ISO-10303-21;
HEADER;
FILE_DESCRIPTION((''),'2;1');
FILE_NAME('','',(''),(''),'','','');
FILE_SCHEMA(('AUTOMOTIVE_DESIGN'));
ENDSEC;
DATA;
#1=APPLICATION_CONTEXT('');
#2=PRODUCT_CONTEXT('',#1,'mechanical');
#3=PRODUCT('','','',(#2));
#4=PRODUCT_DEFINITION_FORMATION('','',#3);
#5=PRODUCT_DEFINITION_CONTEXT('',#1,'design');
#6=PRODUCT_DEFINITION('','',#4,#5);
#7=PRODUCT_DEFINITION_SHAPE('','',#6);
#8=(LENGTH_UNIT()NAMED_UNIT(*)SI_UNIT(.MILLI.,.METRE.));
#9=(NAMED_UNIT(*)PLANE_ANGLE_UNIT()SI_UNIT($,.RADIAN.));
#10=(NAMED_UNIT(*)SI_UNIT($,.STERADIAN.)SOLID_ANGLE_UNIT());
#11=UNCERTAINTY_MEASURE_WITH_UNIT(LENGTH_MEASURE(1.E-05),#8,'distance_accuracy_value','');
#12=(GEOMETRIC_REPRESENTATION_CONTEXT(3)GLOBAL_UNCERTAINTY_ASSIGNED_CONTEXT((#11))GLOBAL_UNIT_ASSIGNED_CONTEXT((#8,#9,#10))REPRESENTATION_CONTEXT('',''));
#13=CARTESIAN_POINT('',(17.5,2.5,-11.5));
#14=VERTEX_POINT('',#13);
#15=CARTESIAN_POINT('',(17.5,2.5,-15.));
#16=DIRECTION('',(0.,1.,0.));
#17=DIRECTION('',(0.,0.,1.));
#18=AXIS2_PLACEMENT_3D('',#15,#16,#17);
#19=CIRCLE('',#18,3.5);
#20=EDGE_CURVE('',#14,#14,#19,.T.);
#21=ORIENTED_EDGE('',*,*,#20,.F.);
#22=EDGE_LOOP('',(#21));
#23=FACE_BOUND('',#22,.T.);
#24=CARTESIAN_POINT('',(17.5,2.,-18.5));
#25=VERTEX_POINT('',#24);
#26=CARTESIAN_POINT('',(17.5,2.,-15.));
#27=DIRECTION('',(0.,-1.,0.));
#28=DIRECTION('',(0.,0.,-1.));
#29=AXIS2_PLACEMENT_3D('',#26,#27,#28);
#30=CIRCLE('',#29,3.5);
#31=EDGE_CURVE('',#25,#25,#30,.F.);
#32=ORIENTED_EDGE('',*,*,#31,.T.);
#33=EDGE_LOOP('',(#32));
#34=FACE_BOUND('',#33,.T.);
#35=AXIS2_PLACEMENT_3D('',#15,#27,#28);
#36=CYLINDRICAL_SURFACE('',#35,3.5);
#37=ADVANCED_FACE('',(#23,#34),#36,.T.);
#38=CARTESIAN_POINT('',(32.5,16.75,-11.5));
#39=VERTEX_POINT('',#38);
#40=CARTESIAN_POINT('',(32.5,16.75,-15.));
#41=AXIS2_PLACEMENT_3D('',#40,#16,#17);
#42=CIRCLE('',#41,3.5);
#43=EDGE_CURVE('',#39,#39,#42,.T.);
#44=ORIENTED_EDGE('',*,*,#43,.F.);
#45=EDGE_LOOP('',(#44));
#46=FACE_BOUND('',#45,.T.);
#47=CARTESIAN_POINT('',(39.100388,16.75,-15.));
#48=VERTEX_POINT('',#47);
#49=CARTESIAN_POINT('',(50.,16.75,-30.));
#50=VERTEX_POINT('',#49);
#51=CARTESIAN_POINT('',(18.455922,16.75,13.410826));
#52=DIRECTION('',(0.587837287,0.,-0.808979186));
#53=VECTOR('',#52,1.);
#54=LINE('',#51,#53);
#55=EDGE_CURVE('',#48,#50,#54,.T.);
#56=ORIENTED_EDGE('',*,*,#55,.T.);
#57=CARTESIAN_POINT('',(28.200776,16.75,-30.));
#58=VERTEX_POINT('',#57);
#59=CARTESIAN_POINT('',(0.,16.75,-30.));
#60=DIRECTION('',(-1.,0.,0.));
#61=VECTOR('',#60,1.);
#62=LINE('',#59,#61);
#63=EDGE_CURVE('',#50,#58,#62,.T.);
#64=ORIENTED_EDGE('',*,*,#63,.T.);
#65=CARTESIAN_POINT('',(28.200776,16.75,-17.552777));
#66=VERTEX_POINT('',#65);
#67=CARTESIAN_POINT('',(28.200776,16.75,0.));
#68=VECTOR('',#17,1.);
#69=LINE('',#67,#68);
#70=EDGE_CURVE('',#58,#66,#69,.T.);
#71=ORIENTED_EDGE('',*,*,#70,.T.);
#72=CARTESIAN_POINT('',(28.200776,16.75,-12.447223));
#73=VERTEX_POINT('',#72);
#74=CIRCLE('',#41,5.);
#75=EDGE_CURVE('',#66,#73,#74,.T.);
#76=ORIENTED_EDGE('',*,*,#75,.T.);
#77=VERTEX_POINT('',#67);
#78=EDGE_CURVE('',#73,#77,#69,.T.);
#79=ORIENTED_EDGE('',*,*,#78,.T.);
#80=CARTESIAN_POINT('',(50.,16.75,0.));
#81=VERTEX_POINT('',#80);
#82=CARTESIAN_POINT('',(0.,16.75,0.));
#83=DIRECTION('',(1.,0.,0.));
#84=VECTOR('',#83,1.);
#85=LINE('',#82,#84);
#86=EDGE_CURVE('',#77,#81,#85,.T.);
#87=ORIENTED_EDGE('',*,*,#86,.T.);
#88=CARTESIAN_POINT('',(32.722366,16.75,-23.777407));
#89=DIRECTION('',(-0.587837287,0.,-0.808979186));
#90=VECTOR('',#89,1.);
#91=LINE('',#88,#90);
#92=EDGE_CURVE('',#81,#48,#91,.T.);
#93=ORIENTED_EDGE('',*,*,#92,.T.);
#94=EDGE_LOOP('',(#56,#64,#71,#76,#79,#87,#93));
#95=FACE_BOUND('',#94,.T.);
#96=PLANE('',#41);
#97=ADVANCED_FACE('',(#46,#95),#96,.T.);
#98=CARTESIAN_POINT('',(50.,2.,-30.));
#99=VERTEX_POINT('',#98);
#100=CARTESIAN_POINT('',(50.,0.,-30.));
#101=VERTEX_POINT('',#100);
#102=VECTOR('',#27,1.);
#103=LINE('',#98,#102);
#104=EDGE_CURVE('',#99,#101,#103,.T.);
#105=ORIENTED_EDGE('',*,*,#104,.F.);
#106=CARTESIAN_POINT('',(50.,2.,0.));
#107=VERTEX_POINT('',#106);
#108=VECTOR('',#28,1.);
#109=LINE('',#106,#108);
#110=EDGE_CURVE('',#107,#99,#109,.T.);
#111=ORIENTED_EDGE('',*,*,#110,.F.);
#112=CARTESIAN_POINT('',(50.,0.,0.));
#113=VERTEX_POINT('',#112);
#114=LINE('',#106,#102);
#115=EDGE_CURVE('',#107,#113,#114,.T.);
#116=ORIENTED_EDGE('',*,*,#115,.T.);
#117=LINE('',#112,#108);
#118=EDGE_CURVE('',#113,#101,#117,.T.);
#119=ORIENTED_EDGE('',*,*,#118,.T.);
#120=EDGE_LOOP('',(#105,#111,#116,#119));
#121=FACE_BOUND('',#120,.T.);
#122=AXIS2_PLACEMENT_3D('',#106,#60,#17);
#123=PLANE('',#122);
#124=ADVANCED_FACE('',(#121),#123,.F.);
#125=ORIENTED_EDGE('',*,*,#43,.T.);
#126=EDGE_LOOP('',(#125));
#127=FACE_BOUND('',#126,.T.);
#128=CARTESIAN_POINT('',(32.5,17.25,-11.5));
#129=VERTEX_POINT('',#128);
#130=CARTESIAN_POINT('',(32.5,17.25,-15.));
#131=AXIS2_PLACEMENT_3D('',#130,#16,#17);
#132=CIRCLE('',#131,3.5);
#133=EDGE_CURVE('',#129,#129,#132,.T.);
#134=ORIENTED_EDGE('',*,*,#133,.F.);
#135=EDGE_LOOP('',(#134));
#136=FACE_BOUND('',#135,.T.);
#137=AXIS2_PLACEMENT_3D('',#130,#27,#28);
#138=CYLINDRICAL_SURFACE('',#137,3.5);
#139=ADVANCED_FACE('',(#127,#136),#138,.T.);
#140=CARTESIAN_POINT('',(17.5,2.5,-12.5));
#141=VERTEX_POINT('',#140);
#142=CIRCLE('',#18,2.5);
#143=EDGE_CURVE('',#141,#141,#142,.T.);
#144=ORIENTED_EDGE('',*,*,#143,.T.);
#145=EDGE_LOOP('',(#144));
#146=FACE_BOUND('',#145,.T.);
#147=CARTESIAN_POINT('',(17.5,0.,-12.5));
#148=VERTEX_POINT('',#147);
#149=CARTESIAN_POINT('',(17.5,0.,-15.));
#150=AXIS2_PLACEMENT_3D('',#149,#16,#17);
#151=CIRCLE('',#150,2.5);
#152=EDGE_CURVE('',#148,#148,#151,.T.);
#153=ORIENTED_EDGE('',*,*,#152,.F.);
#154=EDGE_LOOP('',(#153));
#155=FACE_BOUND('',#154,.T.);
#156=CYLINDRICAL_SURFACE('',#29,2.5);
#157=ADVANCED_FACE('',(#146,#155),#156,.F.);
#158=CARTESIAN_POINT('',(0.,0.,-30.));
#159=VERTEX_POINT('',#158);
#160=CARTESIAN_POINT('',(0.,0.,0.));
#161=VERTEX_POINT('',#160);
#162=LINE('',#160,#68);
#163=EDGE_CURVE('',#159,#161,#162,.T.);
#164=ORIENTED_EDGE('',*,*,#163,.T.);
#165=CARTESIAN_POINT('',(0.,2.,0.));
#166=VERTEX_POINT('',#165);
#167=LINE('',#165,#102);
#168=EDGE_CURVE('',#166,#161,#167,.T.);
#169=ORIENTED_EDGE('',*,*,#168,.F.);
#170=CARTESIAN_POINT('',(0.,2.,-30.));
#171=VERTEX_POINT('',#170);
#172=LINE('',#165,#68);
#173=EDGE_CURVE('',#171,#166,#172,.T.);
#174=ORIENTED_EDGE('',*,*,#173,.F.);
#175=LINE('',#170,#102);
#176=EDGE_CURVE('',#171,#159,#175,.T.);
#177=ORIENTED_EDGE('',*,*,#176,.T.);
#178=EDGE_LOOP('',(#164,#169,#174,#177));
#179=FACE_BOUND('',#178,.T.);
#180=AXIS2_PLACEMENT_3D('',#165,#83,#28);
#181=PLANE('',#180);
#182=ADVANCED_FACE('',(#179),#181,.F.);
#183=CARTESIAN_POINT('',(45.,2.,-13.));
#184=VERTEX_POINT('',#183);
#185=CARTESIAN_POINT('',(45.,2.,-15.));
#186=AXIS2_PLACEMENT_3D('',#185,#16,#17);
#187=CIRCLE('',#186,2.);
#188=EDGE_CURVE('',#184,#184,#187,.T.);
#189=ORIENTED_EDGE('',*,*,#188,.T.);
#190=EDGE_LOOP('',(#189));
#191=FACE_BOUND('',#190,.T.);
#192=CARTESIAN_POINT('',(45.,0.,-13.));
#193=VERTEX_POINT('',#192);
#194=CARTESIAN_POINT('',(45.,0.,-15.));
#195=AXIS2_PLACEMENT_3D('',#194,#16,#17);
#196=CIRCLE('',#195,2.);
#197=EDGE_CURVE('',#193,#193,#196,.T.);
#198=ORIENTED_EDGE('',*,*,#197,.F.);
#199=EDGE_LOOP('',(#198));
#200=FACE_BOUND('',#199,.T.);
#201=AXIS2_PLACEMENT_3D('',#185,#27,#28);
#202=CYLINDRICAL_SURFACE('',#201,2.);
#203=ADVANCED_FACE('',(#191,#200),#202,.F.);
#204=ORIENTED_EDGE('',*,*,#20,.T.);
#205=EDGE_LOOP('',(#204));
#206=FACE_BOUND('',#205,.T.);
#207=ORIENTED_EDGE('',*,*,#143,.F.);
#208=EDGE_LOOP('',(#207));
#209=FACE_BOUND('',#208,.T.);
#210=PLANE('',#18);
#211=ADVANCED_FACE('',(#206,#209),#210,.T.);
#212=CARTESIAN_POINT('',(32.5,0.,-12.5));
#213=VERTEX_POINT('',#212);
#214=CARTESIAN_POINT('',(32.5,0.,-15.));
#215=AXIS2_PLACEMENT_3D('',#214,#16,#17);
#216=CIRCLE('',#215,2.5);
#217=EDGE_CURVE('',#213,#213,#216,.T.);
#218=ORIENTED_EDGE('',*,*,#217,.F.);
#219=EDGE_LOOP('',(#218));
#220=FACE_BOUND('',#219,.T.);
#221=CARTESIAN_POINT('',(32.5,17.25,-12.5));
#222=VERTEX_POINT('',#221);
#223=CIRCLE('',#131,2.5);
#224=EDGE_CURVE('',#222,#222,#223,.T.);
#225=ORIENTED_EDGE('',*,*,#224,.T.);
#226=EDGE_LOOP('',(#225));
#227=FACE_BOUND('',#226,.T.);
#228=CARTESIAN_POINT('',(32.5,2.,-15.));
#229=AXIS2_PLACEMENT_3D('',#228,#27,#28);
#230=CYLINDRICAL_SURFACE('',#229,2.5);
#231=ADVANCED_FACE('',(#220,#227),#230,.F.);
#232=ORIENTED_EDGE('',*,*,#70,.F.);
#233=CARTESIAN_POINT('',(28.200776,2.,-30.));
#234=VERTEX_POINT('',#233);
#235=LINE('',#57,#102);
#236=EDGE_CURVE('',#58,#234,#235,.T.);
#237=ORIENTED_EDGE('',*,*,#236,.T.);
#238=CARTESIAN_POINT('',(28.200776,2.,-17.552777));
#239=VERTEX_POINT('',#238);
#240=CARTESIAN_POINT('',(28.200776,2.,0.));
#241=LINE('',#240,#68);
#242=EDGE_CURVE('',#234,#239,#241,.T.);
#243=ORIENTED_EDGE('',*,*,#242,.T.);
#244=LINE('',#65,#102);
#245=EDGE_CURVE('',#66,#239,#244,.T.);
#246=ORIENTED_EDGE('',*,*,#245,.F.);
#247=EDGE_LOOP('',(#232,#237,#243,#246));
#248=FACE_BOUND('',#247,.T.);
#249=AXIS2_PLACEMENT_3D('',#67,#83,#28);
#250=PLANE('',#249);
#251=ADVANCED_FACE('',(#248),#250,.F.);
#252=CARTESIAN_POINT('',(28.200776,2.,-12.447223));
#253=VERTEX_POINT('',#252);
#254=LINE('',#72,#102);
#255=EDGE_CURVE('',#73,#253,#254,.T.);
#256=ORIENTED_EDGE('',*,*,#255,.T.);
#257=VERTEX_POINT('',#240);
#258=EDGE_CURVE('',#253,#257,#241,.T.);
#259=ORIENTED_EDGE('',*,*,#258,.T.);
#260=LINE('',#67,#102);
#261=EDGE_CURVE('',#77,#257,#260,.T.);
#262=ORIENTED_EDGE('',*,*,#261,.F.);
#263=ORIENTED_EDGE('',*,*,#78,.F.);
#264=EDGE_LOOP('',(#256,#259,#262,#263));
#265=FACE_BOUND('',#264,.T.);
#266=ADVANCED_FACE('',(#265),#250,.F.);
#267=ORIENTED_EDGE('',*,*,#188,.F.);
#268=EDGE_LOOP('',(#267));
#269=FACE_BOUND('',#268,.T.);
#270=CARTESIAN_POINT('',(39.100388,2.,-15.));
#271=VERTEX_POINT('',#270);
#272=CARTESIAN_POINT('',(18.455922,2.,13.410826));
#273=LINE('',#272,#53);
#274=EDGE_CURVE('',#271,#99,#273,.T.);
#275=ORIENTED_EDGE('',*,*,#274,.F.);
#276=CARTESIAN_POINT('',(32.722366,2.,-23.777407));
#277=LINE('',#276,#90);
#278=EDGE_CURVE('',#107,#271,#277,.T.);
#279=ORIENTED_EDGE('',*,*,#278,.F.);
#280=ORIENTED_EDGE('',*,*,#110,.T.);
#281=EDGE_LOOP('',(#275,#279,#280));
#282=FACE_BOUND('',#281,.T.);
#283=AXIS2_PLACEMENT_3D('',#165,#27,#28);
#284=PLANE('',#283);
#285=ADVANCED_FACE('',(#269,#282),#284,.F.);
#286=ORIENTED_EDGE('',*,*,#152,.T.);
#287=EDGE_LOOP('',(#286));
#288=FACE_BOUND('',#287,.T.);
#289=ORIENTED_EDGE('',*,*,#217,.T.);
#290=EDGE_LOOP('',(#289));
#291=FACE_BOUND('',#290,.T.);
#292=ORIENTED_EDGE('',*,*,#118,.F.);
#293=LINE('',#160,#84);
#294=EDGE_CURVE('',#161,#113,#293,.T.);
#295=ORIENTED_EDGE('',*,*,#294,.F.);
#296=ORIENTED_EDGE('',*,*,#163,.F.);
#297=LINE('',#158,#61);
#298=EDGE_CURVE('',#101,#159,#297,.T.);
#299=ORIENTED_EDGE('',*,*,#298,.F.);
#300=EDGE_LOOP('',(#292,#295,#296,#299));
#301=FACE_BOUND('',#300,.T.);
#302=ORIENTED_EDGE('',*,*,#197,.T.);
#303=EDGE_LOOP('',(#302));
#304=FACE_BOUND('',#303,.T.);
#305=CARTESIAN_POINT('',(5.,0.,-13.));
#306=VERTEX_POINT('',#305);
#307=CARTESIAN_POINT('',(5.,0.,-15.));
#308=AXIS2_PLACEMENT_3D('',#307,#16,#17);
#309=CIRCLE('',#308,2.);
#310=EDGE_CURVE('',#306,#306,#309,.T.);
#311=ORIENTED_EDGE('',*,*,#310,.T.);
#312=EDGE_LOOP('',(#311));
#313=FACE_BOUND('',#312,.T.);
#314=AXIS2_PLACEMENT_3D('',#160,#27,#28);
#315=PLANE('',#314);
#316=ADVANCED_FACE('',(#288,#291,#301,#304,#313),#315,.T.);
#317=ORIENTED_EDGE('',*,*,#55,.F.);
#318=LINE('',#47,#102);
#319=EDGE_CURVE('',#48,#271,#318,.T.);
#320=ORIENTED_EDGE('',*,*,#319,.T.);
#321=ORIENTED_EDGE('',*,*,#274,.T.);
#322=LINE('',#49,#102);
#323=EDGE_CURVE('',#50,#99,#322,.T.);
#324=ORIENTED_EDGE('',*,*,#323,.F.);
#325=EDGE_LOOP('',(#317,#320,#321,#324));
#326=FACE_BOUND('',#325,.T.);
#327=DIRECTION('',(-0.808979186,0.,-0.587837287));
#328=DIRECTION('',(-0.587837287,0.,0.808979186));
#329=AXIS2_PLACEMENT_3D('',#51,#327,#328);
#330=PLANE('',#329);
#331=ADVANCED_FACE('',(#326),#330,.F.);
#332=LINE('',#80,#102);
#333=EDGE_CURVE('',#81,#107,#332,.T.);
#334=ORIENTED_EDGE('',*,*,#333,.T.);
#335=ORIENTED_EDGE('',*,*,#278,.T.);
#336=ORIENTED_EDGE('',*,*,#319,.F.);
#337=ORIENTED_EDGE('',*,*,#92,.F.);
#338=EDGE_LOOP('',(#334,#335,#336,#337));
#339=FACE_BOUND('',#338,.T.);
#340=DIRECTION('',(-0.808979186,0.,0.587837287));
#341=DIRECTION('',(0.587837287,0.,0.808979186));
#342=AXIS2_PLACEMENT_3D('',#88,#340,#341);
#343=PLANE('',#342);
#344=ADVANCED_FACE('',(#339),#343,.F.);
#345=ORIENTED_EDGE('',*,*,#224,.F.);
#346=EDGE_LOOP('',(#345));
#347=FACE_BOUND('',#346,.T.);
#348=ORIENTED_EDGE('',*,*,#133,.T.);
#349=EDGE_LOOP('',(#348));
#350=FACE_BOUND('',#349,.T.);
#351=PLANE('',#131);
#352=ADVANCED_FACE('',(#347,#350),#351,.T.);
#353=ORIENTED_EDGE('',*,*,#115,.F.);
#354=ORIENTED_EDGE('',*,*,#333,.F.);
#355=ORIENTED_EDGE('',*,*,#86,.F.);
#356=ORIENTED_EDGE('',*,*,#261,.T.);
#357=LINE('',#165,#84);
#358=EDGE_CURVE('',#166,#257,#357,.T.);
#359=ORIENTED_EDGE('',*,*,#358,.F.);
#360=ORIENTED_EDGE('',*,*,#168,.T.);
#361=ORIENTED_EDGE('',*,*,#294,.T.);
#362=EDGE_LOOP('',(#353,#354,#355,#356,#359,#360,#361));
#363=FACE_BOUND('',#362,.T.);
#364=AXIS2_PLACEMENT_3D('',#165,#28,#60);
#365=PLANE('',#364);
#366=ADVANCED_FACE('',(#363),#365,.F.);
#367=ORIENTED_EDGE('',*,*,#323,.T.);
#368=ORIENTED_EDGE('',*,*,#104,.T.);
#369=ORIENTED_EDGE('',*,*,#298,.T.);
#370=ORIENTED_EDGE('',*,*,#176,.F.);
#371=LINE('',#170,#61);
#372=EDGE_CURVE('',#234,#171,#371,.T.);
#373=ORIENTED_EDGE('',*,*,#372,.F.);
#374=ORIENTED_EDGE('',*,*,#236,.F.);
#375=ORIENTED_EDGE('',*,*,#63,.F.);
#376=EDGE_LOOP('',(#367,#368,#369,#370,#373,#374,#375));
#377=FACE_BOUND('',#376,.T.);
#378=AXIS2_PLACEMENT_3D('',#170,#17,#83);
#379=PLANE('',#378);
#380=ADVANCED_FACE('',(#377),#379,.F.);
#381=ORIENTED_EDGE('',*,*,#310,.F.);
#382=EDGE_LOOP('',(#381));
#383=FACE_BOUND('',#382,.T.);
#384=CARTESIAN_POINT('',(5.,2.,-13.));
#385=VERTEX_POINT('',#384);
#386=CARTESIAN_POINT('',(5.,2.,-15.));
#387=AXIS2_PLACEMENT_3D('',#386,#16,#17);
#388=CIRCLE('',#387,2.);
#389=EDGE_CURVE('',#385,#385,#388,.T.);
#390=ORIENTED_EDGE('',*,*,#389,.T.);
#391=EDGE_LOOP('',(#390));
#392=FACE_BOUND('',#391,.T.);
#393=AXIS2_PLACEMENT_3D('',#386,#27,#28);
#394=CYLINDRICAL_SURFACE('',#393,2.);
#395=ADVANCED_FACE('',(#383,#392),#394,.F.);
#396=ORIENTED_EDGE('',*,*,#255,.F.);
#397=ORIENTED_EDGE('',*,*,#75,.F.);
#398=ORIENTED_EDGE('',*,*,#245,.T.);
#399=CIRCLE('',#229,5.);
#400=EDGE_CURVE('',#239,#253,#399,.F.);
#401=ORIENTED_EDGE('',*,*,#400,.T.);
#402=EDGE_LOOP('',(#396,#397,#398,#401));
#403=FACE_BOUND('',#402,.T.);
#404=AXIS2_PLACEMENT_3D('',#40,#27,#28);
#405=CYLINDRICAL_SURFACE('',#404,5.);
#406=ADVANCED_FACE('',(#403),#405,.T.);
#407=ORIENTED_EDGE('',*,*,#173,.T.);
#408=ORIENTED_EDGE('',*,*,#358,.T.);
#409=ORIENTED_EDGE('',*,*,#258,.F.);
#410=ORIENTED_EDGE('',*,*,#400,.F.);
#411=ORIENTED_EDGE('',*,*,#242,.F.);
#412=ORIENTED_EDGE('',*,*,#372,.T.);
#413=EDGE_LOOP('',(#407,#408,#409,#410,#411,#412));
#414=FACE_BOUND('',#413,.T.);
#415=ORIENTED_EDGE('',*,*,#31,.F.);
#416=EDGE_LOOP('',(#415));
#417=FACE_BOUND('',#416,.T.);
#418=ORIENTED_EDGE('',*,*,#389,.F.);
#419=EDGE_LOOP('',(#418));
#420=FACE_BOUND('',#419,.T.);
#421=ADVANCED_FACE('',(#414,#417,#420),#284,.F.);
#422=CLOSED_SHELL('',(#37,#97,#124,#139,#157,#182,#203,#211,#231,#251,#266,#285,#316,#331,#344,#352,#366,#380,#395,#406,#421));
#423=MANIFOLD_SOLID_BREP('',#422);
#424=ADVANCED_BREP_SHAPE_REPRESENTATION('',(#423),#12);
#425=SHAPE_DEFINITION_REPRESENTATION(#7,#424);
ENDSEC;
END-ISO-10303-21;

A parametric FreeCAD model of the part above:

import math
import FreeCAD as App
import Part
import Sketcher
Q = App.Units.Quantity


def add_polygon(sketch, points):
    """Adds a closed chain of lines whose ends are joined by coincident constraints."""
    first, n = sketch.GeometryCount, len(points)
    for a, b in zip(points, points[1:] + points[:1]):
        sketch.addGeometry(Part.LineSegment(App.Vector(*a, 0), App.Vector(*b, 0)), False)
    for i in range(n):
        sketch.addConstraint(Sketcher.Constraint("Coincident", first + i, 2, first + (i + 1) % n, 1))

doc = App.newDocument("Part")
body = doc.addObject("PartDesign::Body", "Body")

# Sketch on XZ plane
sketch1 = body.newObject("Sketcher::SketchObject", "Sketch")
sketch1.AttachmentSupport = (doc.getObject("XZ_Plane"), [""])
sketch1.MapMode = "FlatFace"
add_polygon(sketch1, [(0, -30), (0, 0), (50, 0), (50, -30)])  # lines 0-3
sketch1.addGeometry(Part.Circle(App.Vector(5, -15, 0), App.Vector(0, 0, 1), 2), False)  # 4
sketch1.addGeometry(Part.Circle(App.Vector(17.5, -15, 0), App.Vector(0, 0, 1), 2.5), False)  # 5
sketch1.addGeometry(Part.Circle(App.Vector(32.5, -15, 0), App.Vector(0, 0, 1), 2.5), False)  # 6
sketch1.addGeometry(Part.Circle(App.Vector(45, -15, 0), App.Vector(0, 0, 1), 2), False)  # 7
sketch1.addConstraint([
    Sketcher.Constraint("Vertical", 0),
    Sketcher.Constraint("Horizontal", 1),
    Sketcher.Constraint("Vertical", 2),
    Sketcher.Constraint("Horizontal", 3),
    Sketcher.Constraint("Coincident", 0, 2, -1, 1),
    Sketcher.Constraint("Equal", 5, 6),
    Sketcher.Constraint("Equal", 4, 7),
    Sketcher.Constraint("Horizontal", 4, 3, 5, 3),
    Sketcher.Constraint("Horizontal", 5, 3, 6, 3),
    Sketcher.Constraint("Horizontal", 6, 3, 7, 3),
    Sketcher.Constraint("Diameter", 4, Q("4 mm")),
    Sketcher.Constraint("Diameter", 5, Q("5 mm")),
    Sketcher.Constraint("DistanceX", 1, 1, 1, 2, Q("50 mm")),
    Sketcher.Constraint("DistanceY", 0, 1, 0, 2, Q("30 mm")),
    Sketcher.Constraint("DistanceX", -1, 1, 4, 3, Q("5 mm")),
    Sketcher.Constraint("DistanceY", 4, 3, -1, 1, Q("15 mm")),
    Sketcher.Constraint("DistanceX", -1, 1, 7, 3, Q("45 mm")),
    Sketcher.Constraint("DistanceX", 5, 3, 6, 3, Q("15 mm")),
    Sketcher.Constraint("DistanceX", -1, 1, 5, 3, Q("17.5 mm")),
])
pad1 = body.newObject("PartDesign::Pad", "Pad")
pad1.Profile = sketch1
pad1.Length = 2
pad1.Reversed = True

# Sketch on XZ plane
sketch2 = body.newObject("Sketcher::SketchObject", "Sketch001")
sketch2.AttachmentSupport = (doc.getObject("XZ_Plane"), [""])
sketch2.MapMode = "FlatFace"
sketch2.AttachmentOffset = App.Placement(App.Vector(0, 0, -2), App.Rotation())
sketch2.addGeometry([
    Part.Circle(App.Vector(32.5, -15, 0), App.Vector(0, 0, 1), 5),
    Part.Circle(App.Vector(32.5, -15, 0), App.Vector(0, 0, 1), 2.5),
], False)
sketch2.addConstraint([
    Sketcher.Constraint("Coincident", 1, 3, 0, 3),
    Sketcher.Constraint("Diameter", 0, Q("10 mm")),
    Sketcher.Constraint("Diameter", 1, Q("5 mm")),
    Sketcher.Constraint("DistanceY", 0, 3, -1, 1, Q("15 mm")),
    Sketcher.Constraint("DistanceX", -1, 1, 0, 3, Q("32.5 mm")),
])
pad2 = body.newObject("PartDesign::Pad", "Pad001")
pad2.Profile = sketch2
pad2.Length = 14.75
pad2.Reversed = True

# Sketch on XZ plane
sketch3 = body.newObject("Sketcher::SketchObject", "Sketch002")
sketch3.AttachmentSupport = (doc.getObject("XZ_Plane"), [""])
sketch3.MapMode = "FlatFace"
sketch3.AttachmentOffset = App.Placement(App.Vector(0, 0, -2), App.Rotation())
sketch3.addGeometry([
    Part.Circle(App.Vector(17.5, -15, 0), App.Vector(0, 0, 1), 3.5),
    Part.Circle(App.Vector(17.5, -15, 0), App.Vector(0, 0, 1), 2.5),
], False)
sketch3.addConstraint([
    Sketcher.Constraint("Coincident", 1, 3, 0, 3),
    Sketcher.Constraint("Diameter", 0, Q("7 mm")),
    Sketcher.Constraint("Diameter", 1, Q("5 mm")),
    Sketcher.Constraint("DistanceY", 0, 3, -1, 1, Q("15 mm")),
    Sketcher.Constraint("DistanceX", -1, 1, 0, 3, Q("17.5 mm")),
])
pad3 = body.newObject("PartDesign::Pad", "Pad002")
pad3.Profile = sketch3
pad3.Length = 0.5
pad3.Reversed = True

# Sketch on XZ plane
sketch4 = body.newObject("Sketcher::SketchObject", "Sketch003")
sketch4.AttachmentSupport = (doc.getObject("XZ_Plane"), [""])
sketch4.MapMode = "FlatFace"
sketch4.AttachmentOffset = App.Placement(App.Vector(0, 0, -16.75), App.Rotation())
sketch4.addGeometry([
    Part.Circle(App.Vector(32.5, -15, 0), App.Vector(0, 0, 1), 3.5),
    Part.Circle(App.Vector(32.5, -15, 0), App.Vector(0, 0, 1), 2.5),
], False)
sketch4.addConstraint([
    Sketcher.Constraint("Coincident", 1, 3, 0, 3),
    Sketcher.Constraint("Diameter", 0, Q("7 mm")),
    Sketcher.Constraint("Diameter", 1, Q("5 mm")),
    Sketcher.Constraint("DistanceY", 0, 3, -1, 1, Q("15 mm")),
    Sketcher.Constraint("DistanceX", -1, 1, 0, 3, Q("32.5 mm")),
])
pad4 = body.newObject("PartDesign::Pad", "Pad003")
pad4.Profile = sketch4
pad4.Length = 0.5
pad4.Reversed = True

# Sketch on XZ plane
sketch5 = body.newObject("Sketcher::SketchObject", "Sketch004")
sketch5.AttachmentSupport = (doc.getObject("XZ_Plane"), [""])
sketch5.MapMode = "FlatFace"
sketch5.AttachmentOffset = App.Placement(App.Vector(0, 0, -2), App.Rotation())
sketch5.addGeometry([
    Part.LineSegment(App.Vector(50, -30, 0), App.Vector(28.200776, -30, 0)),  # 0
    Part.LineSegment(App.Vector(28.200776, -30, 0), App.Vector(28.200776, -17.552777, 0)),  # 1
    Part.ArcOfCircle(Part.Circle(App.Vector(32.5, -15, 0), App.Vector(0, 0, 1), 5), math.radians(-149.299165), math.radians(0)),  # 2
    Part.ArcOfCircle(Part.Circle(App.Vector(32.5, -15, 0), App.Vector(0, 0, 1), 5), math.radians(0), math.radians(149.299165)),  # 3
    Part.LineSegment(App.Vector(28.200776, -12.447223, 0), App.Vector(28.200776, 0, 0)),  # 4
    Part.LineSegment(App.Vector(28.200776, 0, 0), App.Vector(50, 0, 0)),  # 5
    Part.LineSegment(App.Vector(50, 0, 0), App.Vector(39.100388, -15, 0)),  # 6
    Part.LineSegment(App.Vector(39.100388, -15, 0), App.Vector(50, -30, 0)),  # 7
], False)
sketch5.addConstraint([
    Sketcher.Constraint("Coincident", 0, 2, 1, 1),
    Sketcher.Constraint("Coincident", 1, 2, 2, 1),
    Sketcher.Constraint("Tangent", 2, 2, 3, 1),
    Sketcher.Constraint("Coincident", 3, 2, 4, 1),
    Sketcher.Constraint("Coincident", 4, 2, 5, 1),
    Sketcher.Constraint("Coincident", 5, 2, 6, 1),
    Sketcher.Constraint("Coincident", 6, 2, 7, 1),
    Sketcher.Constraint("Coincident", 7, 2, 0, 1),
    Sketcher.Constraint("Horizontal", 0),
    Sketcher.Constraint("Vertical", 1),
    Sketcher.Constraint("Vertical", 4),
    Sketcher.Constraint("Horizontal", 5),
    Sketcher.Constraint("Equal", 2, 3),
    Sketcher.Constraint("PointOnObject", 4, 2, -1),
    Sketcher.Constraint("Horizontal", 3, 3, 2, 2),
    Sketcher.Constraint("Horizontal", 2, 2, 6, 2),
    Sketcher.Constraint("Vertical", 1, 2, 3, 2),
    Sketcher.Constraint("Vertical", 5, 2, 7, 2),
    Sketcher.Constraint("Equal", 1, 4),
    Sketcher.Constraint("Radius", 2, Q("5 mm")),
    Sketcher.Constraint("DistanceY", 2, 3, -1, 1, Q("15 mm")),
    Sketcher.Constraint("DistanceX", -1, 1, 5, 2, Q("50 mm")),
    Sketcher.Constraint("DistanceX", -1, 1, 2, 3, Q("32.5 mm")),
    Sketcher.Constraint("DistanceX", 0, 2, 0, 1, Q("21.799224 mm")),
    Sketcher.Constraint("Distance", 6, Q("18.541886 mm")),
])
pad5 = body.newObject("PartDesign::Pad", "Pad004")
pad5.Profile = sketch5
pad5.Length = 14.75
pad5.Reversed = True

doc.recompute()
